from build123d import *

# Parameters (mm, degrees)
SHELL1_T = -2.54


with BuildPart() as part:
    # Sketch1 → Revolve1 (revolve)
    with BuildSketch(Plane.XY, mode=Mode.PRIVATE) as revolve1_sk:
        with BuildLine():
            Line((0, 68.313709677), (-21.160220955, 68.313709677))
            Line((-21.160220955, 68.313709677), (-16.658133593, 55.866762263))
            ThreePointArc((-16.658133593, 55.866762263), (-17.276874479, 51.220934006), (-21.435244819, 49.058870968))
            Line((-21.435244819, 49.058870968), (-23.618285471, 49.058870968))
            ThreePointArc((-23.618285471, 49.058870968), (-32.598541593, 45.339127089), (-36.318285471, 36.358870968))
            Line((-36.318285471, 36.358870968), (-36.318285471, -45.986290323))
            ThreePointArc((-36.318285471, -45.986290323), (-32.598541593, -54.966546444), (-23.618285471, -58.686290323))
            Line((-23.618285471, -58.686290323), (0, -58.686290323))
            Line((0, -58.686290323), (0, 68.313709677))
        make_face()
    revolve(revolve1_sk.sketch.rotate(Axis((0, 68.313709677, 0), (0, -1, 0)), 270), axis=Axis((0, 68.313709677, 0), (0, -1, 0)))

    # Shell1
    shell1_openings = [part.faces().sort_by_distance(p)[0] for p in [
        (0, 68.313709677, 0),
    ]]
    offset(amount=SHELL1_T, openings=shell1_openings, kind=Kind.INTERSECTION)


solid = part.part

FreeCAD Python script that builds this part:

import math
import FreeCAD as App
import Part
import Sketcher
from FreeCAD import Vector
Q = App.Units.Quantity


def faces_at(feature, points):
    """Names of the faces that lie closest to the given points."""
    faces = feature.Shape.Faces
    near = lambda p: min(range(len(faces)), key=lambda i: faces[i].distToShape(Part.Vertex(*p))[0])
    return sorted({f"Face{near(p) + 1}" for p in points})

doc = App.newDocument("Part")
body = doc.addObject("PartDesign::Body", "Body")

sketch1 = doc.addObject("Sketcher::SketchObject", "Sketch")
body.addObject(sketch1)
sketch1.AttachmentSupport = (doc.XY_Plane, [""])
sketch1.MapMode = "FlatFace"
sketch1.addGeometry(Part.LineSegment(Vector(0, 68.3, 0), Vector(-21.2, 68.3, 0)), False)
sketch1.addGeometry(Part.LineSegment(Vector(-21.2, 68.3, 0), Vector(-16.7, 55.9, 0)), False)
sketch1.addGeometry(Part.ArcOfCircle(Part.Circle(Vector(-21.4, 54.1, 0), Vector(0, 0, 1), 5.1), math.radians(-90), math.radians(20)), False)
sketch1.addGeometry(Part.LineSegment(Vector(-21.4, 49.1, 0), Vector(-23.6, 49.1, 0)), False)
sketch1.addGeometry(Part.ArcOfCircle(Part.Circle(Vector(-23.6, 36.4, 0), Vector(0, 0, 1), 12.7), math.radians(90), math.radians(180)), False)
sketch1.addGeometry(Part.LineSegment(Vector(-36.3, 36.4, 0), Vector(-36.3, -46, 0)), False)
sketch1.addGeometry(Part.ArcOfCircle(Part.Circle(Vector(-23.6, -46, 0), Vector(0, 0, 1), 12.7), math.radians(180), math.radians(270)), False)
sketch1.addGeometry(Part.LineSegment(Vector(-23.6, -58.7, 0), Vector(0, -58.7, 0)), False)
sketch1.addGeometry(Part.LineSegment(Vector(0, -58.7, 0), Vector(0, 68.3, 0)), False)
sketch1.addConstraint(Sketcher.Constraint("Coincident", 0, 2, 1, 1))
sketch1.addConstraint(Sketcher.Constraint("Tangent", 1, 2, 2, 2))
sketch1.addConstraint(Sketcher.Constraint("Tangent", 2, 1, 3, 1))
sketch1.addConstraint(Sketcher.Constraint("Tangent", 3, 2, 4, 1))
sketch1.addConstraint(Sketcher.Constraint("Tangent", 4, 2, 5, 1))
sketch1.addConstraint(Sketcher.Constraint("Tangent", 5, 2, 6, 1))
sketch1.addConstraint(Sketcher.Constraint("Tangent", 6, 2, 7, 1))
sketch1.addConstraint(Sketcher.Constraint("Coincident", 7, 2, 8, 1))
sketch1.addConstraint(Sketcher.Constraint("Coincident", 8, 2, 0, 1))
sketch1.addConstraint(Sketcher.Constraint("Horizontal", 0))
sketch1.addConstraint(Sketcher.Constraint("Horizontal", 3))
sketch1.addConstraint(Sketcher.Constraint("Vertical", 5))
sketch1.addConstraint(Sketcher.Constraint("Horizontal", 7))
sketch1.addConstraint(Sketcher.Constraint("Vertical", 8))
sketch1.addConstraint(Sketcher.Constraint("Equal", 4, 6))
sketch1.addConstraint(Sketcher.Constraint("PointOnObject", 7, 2, -2))
sketch1.addConstraint(Sketcher.Constraint("Radius", 2, Q("0.2 in")))
sketch1.addConstraint(Sketcher.Constraint("Radius", 4, Q("0.5 in")))
sketch1.addConstraint(Sketcher.Constraint("DistanceY", 8, 1, 8, 2, Q("5 in")))
sketch1.addConstraint(Sketcher.Constraint("DistanceX", 0, 2, 0, 1, Q("21.160221 mm")))
sketch1.addConstraint(Sketcher.Constraint("DistanceX", 3, 2, 3, 1, Q("2.183041 mm")))
sketch1.addConstraint(Sketcher.Constraint("DistanceY", 5, 2, 5, 1, Q("82.345161 mm")))
sketch1.addConstraint(Sketcher.Constraint("DistanceX", 7, 1, 7, 2, Q("23.618285 mm")))
sketch1.addConstraint(Sketcher.Constraint("DistanceY", -1, 1, 2, 3, Q("54.138871 mm")))
revolution = doc.addObject("PartDesign::Revolution", "Revolution")
body.addObject(revolution)
revolution.Profile = sketch1
revolution.ReferenceAxis = (sketch1, ["V_Axis"])
revolution.Angle = 360
doc.recompute()

thickness = doc.addObject("PartDesign::Thickness", "Thickness")
body.addObject(thickness)
thickness.Base = (revolution, faces_at(revolution, [(0, 68.314, 0)]))
thickness.Value = Q("0.1 in")
thickness.Reversed = True
thickness.Join = "Intersection"

doc.recompute()
